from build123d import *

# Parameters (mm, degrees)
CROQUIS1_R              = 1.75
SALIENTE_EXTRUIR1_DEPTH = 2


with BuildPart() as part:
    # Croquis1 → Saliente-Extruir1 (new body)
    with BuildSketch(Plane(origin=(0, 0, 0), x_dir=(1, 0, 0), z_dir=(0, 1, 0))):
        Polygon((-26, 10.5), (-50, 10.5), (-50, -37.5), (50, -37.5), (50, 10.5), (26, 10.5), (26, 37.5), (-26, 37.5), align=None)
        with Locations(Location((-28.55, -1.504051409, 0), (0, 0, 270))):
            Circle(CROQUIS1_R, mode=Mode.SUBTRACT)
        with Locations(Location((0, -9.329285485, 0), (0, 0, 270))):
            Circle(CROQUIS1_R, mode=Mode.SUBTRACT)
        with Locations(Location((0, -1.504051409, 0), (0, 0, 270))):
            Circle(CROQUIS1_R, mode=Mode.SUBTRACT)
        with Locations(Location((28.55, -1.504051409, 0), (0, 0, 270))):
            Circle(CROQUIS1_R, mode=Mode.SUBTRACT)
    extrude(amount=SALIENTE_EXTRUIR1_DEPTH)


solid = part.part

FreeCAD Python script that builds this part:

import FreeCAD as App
import Part
import Sketcher

doc = App.newDocument("Part")
body = doc.addObject("PartDesign::Body", "Body")

# Sketch on XZ plane
sketch1 = body.newObject("Sketcher::SketchObject", "Sketch")
sketch1.AttachmentSupport = (doc.getObject("XZ_Plane"), [""])
sketch1.MapMode = "FlatFace"
sketch1.addGeometry(Part.LineSegment(App.Vector(-26, -10.5, 0), App.Vector(-50, -10.5, 0)), False)
sketch1.addGeometry(Part.LineSegment(App.Vector(-50, -10.5, 0), App.Vector(-50, 37.5, 0)), False)
sketch1.addGeometry(Part.LineSegment(App.Vector(-50, 37.5, 0), App.Vector(50, 37.5, 0)), False)
sketch1.addGeometry(Part.LineSegment(App.Vector(50, 37.5, 0), App.Vector(50, -10.5, 0)), False)
sketch1.addGeometry(Part.LineSegment(App.Vector(50, -10.5, 0), App.Vector(26, -10.5, 0)), False)
sketch1.addGeometry(Part.LineSegment(App.Vector(26, -10.5, 0), App.Vector(26, -37.5, 0)), False)
sketch1.addGeometry(Part.LineSegment(App.Vector(26, -37.5, 0), App.Vector(-26, -37.5, 0)), False)
sketch1.addGeometry(Part.LineSegment(App.Vector(-26, -37.5, 0), App.Vector(-26, -10.5, 0)), False)
sketch1.addGeometry(Part.Circle(App.Vector(0, 9.3, 0), App.Vector(0, 0, 1), 1.8), False)
sketch1.addGeometry(Part.Circle(App.Vector(-28.6, 1.5, 0), App.Vector(0, 0, 1), 1.8), False)
sketch1.addGeometry(Part.Circle(App.Vector(0, 1.5, 0), App.Vector(0, 0, 1), 1.8), False)
sketch1.addGeometry(Part.Circle(App.Vector(28.6, 1.5, 0), App.Vector(0, 0, 1), 1.8), False)
sketch1.addConstraint(Sketcher.Constraint("Coincident", 0, 2, 1, 1))
sketch1.addConstraint(Sketcher.Constraint("Coincident", 1, 2, 2, 1))
sketch1.addConstraint(Sketcher.Constraint("Coincident", 2, 2, 3, 1))
sketch1.addConstraint(Sketcher.Constraint("Coincident", 3, 2, 4, 1))
sketch1.addConstraint(Sketcher.Constraint("Coincident", 4, 2, 5, 1))
sketch1.addConstraint(Sketcher.Constraint("Coincident", 5, 2, 6, 1))
sketch1.addConstraint(Sketcher.Constraint("Coincident", 6, 2, 7, 1))
sketch1.addConstraint(Sketcher.Constraint("Coincident", 7, 2, 0, 1))
sketch1.addConstraint(Sketcher.Constraint("Horizontal", 0))
sketch1.addConstraint(Sketcher.Constraint("Vertical", 1))
sketch1.addConstraint(Sketcher.Constraint("Horizontal", 2))
sketch1.addConstraint(Sketcher.Constraint("Vertical", 3))
sketch1.addConstraint(Sketcher.Constraint("Horizontal", 4))
sketch1.addConstraint(Sketcher.Constraint("Vertical", 5))
sketch1.addConstraint(Sketcher.Constraint("Horizontal", 6))
sketch1.addConstraint(Sketcher.Constraint("Vertical", 7))
sketch1.addConstraint(Sketcher.Constraint("Equal", 8, 9))
sketch1.addConstraint(Sketcher.Constraint("Equal", 9, 10))
sketch1.addConstraint(Sketcher.Constraint("Equal", 10, 11))
sketch1.addConstraint(Sketcher.Constraint("Symmetric", 9, 3, 11, 3, -2))
sketch1.addConstraint(Sketcher.Constraint("Symmetric", 0, 2, 3, 2, -2))
sketch1.addConstraint(Sketcher.Constraint("PointOnObject", 8, 3, -2))
sketch1.addConstraint(Sketcher.Constraint("PointOnObject", 10, 3, -2))
sketch1.addConstraint(Sketcher.Constraint("Horizontal", 9, 3, 10, 3))
sketch1.addConstraint(Sketcher.Constraint("Equal", 0, 4))
sketch1.addConstraint(Sketcher.Constraint("Diameter", 8, 3.5))
sketch1.addConstraint(Sketcher.Constraint("DistanceX", 0, 2, 0, 1, 24.0))
sketch1.addConstraint(Sketcher.Constraint("DistanceX", 2, 1, 2, 2, 100.0))
sketch1.addConstraint(Sketcher.Constraint("DistanceY", 1, 1, 1, 2, 48.0))
sketch1.addConstraint(Sketcher.Constraint("DistanceY", 5, 2, 5, 1, 27.0))
sketch1.addConstraint(Sketcher.Constraint("DistanceY", 0, 2, -1, 1, 10.5))
sketch1.addConstraint(Sketcher.Constraint("DistanceX", 9, 3, 11, 3, 57.1))
sketch1.addConstraint(Sketcher.Constraint("DistanceY", -1, 1, 9, 3, 1.504051))
sketch1.addConstraint(Sketcher.Constraint("DistanceY", -1, 1, 8, 3, 9.329285))
pad1 = body.newObject("PartDesign::Pad", "Pad")
pad1.Profile = sketch1
pad1.Length = 2
pad1.Reversed = True

doc.recompute()
